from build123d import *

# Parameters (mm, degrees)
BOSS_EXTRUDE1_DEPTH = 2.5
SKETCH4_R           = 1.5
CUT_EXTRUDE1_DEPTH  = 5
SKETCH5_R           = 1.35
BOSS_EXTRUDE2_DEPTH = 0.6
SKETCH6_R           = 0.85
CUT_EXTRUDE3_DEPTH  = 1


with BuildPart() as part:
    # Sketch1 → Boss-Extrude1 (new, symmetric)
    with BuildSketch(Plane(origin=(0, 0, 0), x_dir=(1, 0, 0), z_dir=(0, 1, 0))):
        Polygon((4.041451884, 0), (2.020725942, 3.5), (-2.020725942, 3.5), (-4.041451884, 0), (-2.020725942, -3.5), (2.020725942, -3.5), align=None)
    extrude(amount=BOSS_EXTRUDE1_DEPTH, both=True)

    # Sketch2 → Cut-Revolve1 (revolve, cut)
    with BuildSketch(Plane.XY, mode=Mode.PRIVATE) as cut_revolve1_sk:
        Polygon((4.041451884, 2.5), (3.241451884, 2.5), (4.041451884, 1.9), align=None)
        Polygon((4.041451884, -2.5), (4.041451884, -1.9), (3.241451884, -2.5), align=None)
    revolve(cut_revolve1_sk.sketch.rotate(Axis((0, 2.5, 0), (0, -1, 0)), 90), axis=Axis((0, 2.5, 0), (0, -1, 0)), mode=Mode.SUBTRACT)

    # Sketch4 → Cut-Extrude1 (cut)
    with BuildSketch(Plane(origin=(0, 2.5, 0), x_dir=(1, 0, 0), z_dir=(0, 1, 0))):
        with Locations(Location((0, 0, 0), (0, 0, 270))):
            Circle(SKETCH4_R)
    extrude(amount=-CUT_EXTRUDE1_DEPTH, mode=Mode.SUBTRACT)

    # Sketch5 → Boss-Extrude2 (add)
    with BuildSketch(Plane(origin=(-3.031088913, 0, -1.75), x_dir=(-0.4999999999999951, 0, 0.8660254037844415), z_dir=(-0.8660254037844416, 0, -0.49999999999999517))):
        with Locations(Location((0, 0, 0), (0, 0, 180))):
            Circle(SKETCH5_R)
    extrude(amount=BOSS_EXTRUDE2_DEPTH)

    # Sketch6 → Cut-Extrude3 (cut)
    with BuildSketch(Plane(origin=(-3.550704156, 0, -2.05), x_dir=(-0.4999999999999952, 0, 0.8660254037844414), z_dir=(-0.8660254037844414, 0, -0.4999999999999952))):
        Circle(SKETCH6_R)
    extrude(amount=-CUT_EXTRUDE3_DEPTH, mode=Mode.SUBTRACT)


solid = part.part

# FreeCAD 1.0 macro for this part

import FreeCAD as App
import Part
import Sketcher
from FreeCAD import Vector
Q = App.Units.Quantity

doc = App.newDocument("Part")
body = doc.addObject("PartDesign::Body", "Body")

# Sketch on XZ plane
sketch1 = body.newObject("Sketcher::SketchObject", "Sketch")
sketch1.AttachmentSupport = (doc.getObject("XZ_Plane"), [""])
sketch1.MapMode = "FlatFace"
sketch1.addGeometry([
    Part.LineSegment(Vector(4, 0, 0), Vector(2, -3.5, 0)),  # 0
    Part.LineSegment(Vector(2, -3.5, 0), Vector(-2, -3.5, 0)),  # 1
    Part.LineSegment(Vector(-2, -3.5, 0), Vector(-4, 0, 0)),  # 2
    Part.LineSegment(Vector(-4, 0, 0), Vector(-2, 3.5, 0)),  # 3
    Part.LineSegment(Vector(-2, 3.5, 0), Vector(2, 3.5, 0)),  # 4
    Part.LineSegment(Vector(2, 3.5, 0), Vector(4, 0, 0)),  # 5
], False)
sketch1.addConstraint([
    Sketcher.Constraint("Coincident", 0, 2, 1, 1),
    Sketcher.Constraint("Coincident", 1, 2, 2, 1),
    Sketcher.Constraint("Coincident", 2, 2, 3, 1),
    Sketcher.Constraint("Coincident", 3, 2, 4, 1),
    Sketcher.Constraint("Coincident", 4, 2, 5, 1),
    Sketcher.Constraint("Coincident", 5, 2, 0, 1),
    Sketcher.Constraint("Horizontal", 1),
    Sketcher.Constraint("Horizontal", 4),
    Sketcher.Constraint("Symmetric", 0, 2, 3, 2, -1, 1),
    Sketcher.Constraint("Symmetric", 2, 2, 5, 2, -1, 1),
    Sketcher.Constraint("PointOnObject", 2, 2, -1),
    Sketcher.Constraint("Parallel", 2, 5),
    Sketcher.Constraint("Vertical", 1, 2, 3, 2),
    Sketcher.Constraint("Angle", 0, Q("-120 deg")),
    Sketcher.Constraint("DistanceY", 1, 2, 3, 2, Q("7 mm")),
    Sketcher.Constraint("DistanceX", 1, 2, 1, 1, Q("4.041452 mm")),
])
pad1 = body.newObject("PartDesign::Pad", "Pad")
pad1.Profile = sketch1
pad1.Length = 5
pad1.Midplane = True

# Sketch on XY plane
sketch2 = body.newObject("Sketcher::SketchObject", "Sketch001")
sketch2.AttachmentSupport = (doc.getObject("XY_Plane"), [""])
sketch2.MapMode = "FlatFace"
sketch2.addGeometry([
    Part.LineSegment(Vector(4, 2.5, 0), Vector(3.2, 2.5, 0)),  # 0
    Part.LineSegment(Vector(3.2, 2.5, 0), Vector(4, 1.9, 0)),  # 1
    Part.LineSegment(Vector(4, 1.9, 0), Vector(4, 2.5, 0)),  # 2
    Part.LineSegment(Vector(4, -2.5, 0), Vector(4, -1.9, 0)),  # 3
    Part.LineSegment(Vector(4, -1.9, 0), Vector(3.2, -2.5, 0)),  # 4
    Part.LineSegment(Vector(3.2, -2.5, 0), Vector(4, -2.5, 0)),  # 5
], False)
sketch2.addConstraint([
    Sketcher.Constraint("Coincident", 0, 2, 1, 1),
    Sketcher.Constraint("Coincident", 1, 2, 2, 1),
    Sketcher.Constraint("Coincident", 2, 2, 0, 1),
    Sketcher.Constraint("Coincident", 3, 2, 4, 1),
    Sketcher.Constraint("Coincident", 4, 2, 5, 1),
    Sketcher.Constraint("Coincident", 5, 2, 3, 1),
    Sketcher.Constraint("Horizontal", 0),
    Sketcher.Constraint("Vertical", 2),
    Sketcher.Constraint("Vertical", 3),
    Sketcher.Constraint("Horizontal", 5),
    Sketcher.Constraint("Symmetric", 1, 2, 3, 2, -1),
    Sketcher.Constraint("Symmetric", 0, 2, 4, 2, -1),
    Sketcher.Constraint("Distance", 1, Q("1 mm")),
    Sketcher.Constraint("DistanceX", 0, 2, 0, 1, Q("0.8 mm")),
    Sketcher.Constraint("DistanceY", 4, 2, 0, 2, Q("5 mm")),
    Sketcher.Constraint("DistanceX", -1, 1, 0, 2, Q("3.241452 mm")),
])
groove = body.newObject("PartDesign::Groove", "Groove")
groove.Profile = sketch2
groove.ReferenceAxis = (sketch2, ["V_Axis"])
groove.Angle = 360

# Sketch on XZ plane
sketch3 = body.newObject("Sketcher::SketchObject", "Sketch002")
sketch3.AttachmentSupport = (doc.getObject("XZ_Plane"), [""])
sketch3.MapMode = "FlatFace"
sketch3.AttachmentOffset = App.Placement(Vector(0, 0, -2.5), App.Rotation())
sketch3.addGeometry(Part.Circle(Vector(0, 0, 0), Vector(0, 0, 1), 1.5), False)
sketch3.addConstraint([
    Sketcher.Constraint("Coincident", 0, 3, -1, 1),
    Sketcher.Constraint("Diameter", 0, Q("3 mm")),
])
pocket1 = body.newObject("PartDesign::Pocket", "Pocket")
pocket1.Profile = sketch3
pocket1.Length = 5
pocket1.Reversed = True

# Sketch on an angled plane
sketch4 = body.newObject("Sketcher::SketchObject", "Sketch003")
sketch4.Placement = App.Placement(Vector(-3.031089, 0, -1.75), App.Rotation(Vector(-0.5, 0, 0.866025404), Vector(0, 1, 0), Vector(-0.866025404, 0, -0.5), "ZXY"))
sketch4.addGeometry(Part.Circle(Vector(0, 0, 0), Vector(0, 0, 1), 1.4), False)
sketch4.addConstraint([
    Sketcher.Constraint("Coincident", 0, 3, -1, 1),
    Sketcher.Constraint("Diameter", 0, Q("2.7 mm")),
])
pad2 = body.newObject("PartDesign::Pad", "Pad001")
pad2.Profile = sketch4
pad2.Length = 0.6

# Sketch on an angled plane
sketch5 = body.newObject("Sketcher::SketchObject", "Sketch004")
sketch5.Placement = App.Placement(Vector(-3.550704, 0, -2.05), App.Rotation(Vector(-0.5, 0, 0.866025404), Vector(0, 1, 0), Vector(-0.866025404, 0, -0.5), "ZXY"))
sketch5.addGeometry(Part.Circle(Vector(0, 0, 0), Vector(0, 0, 1), 0.8), False)
sketch5.addConstraint([
    Sketcher.Constraint("Coincident", 0, 3, -1, 1),
    Sketcher.Constraint("Diameter", 0, Q("1.7 mm")),
])
pocket2 = body.newObject("PartDesign::Pocket", "Pocket001")
pocket2.Profile = sketch5
pocket2.Length = 1

doc.recompute()
